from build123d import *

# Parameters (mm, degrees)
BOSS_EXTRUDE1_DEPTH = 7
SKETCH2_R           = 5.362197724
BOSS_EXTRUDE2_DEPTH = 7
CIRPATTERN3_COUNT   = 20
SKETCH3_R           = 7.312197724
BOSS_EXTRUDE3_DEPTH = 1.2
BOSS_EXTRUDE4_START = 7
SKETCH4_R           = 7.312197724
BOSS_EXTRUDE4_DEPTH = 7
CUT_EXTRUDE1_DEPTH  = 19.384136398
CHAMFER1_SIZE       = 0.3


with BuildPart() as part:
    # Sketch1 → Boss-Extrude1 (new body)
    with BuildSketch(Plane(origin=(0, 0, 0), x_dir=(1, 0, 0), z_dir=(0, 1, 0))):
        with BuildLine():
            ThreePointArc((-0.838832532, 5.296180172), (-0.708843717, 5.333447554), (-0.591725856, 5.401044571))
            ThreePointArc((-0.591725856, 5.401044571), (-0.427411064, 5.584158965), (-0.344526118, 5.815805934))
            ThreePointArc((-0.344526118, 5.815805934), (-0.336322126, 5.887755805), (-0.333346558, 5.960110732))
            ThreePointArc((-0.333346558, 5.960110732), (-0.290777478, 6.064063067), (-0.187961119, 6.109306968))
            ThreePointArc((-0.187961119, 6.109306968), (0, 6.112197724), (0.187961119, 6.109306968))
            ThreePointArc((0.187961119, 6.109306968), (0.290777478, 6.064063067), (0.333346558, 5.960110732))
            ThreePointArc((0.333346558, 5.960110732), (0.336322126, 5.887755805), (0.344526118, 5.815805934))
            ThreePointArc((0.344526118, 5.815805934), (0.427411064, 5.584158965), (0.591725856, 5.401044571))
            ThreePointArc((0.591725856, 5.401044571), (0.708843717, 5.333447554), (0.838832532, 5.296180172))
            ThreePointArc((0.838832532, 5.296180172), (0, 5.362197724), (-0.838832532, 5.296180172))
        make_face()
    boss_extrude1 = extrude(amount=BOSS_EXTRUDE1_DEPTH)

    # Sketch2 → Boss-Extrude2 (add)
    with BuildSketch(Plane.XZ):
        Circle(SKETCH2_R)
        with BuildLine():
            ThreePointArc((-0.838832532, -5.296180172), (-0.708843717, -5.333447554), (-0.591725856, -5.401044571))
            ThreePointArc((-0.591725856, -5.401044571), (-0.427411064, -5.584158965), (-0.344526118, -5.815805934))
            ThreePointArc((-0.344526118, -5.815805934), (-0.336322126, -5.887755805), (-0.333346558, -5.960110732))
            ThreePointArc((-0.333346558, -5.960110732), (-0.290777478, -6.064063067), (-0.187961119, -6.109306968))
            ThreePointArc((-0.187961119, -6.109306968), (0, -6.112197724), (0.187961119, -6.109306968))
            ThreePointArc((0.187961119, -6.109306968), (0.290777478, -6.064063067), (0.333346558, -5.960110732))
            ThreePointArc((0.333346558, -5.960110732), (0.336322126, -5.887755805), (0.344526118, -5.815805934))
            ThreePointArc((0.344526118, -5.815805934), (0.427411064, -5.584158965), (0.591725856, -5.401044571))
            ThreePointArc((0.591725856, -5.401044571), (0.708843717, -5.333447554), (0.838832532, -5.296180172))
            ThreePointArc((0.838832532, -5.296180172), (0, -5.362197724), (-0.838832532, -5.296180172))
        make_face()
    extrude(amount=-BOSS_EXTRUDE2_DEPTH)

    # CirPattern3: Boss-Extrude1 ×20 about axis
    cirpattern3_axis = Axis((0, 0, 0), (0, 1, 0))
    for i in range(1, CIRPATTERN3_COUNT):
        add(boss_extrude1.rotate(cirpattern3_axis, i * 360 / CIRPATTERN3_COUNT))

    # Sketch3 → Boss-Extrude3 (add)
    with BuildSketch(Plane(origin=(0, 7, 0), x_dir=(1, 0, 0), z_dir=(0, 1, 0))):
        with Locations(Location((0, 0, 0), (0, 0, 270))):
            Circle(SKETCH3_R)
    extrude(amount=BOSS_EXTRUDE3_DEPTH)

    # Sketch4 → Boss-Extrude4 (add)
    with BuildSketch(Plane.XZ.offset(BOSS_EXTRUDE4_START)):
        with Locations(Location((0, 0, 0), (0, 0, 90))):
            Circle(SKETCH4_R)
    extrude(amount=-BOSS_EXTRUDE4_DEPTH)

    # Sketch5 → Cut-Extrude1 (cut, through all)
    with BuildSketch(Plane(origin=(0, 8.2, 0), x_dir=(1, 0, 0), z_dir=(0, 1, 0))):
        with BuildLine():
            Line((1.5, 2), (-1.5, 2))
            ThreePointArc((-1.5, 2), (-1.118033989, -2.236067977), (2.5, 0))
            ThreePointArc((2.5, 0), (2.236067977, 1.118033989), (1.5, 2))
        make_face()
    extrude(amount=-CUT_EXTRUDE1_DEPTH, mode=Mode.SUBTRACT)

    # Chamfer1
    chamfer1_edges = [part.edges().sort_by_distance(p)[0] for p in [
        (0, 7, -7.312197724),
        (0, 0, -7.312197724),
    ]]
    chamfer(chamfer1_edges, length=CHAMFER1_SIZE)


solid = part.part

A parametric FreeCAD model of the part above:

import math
import FreeCAD as App
import Part
import Sketcher
Q = App.Units.Quantity


def edges_at(feature, points):
    """Names of the edges that pass closest to the given points."""
    edges = feature.Shape.Edges
    near = lambda p: min(range(len(edges)), key=lambda i: edges[i].distToShape(Part.Vertex(*p))[0])
    return sorted({f"Edge{near(p) + 1}" for p in points})

doc = App.newDocument("Part")
body = doc.addObject("PartDesign::Body", "Body")

sketch1 = body.newObject("Sketcher::SketchObject", "Sketch")
sketch1.AttachmentSupport = (doc.getObject("XZ_Plane"), [""])
sketch1.MapMode = "FlatFace"
sketch1.addGeometry([
    Part.ArcOfCircle(Part.Circle(App.Vector(-0.93, -5.84, 0), App.Vector(0, 0, 1), 0.55), math.radians(53), math.radians(81)),
    Part.ArcOfCircle(Part.Circle(App.Vector(0, 0, 0), App.Vector(0, 0, 1), 5.36), math.radians(-99), math.radians(-81)),
    Part.ArcOfCircle(Part.Circle(App.Vector(0.93, -5.84, 0), App.Vector(0, 0, 1), 0.55), math.radians(99), math.radians(127)),
    Part.ArcOfCircle(Part.Circle(App.Vector(0.98, -5.91, 0), App.Vector(0, 0, 1), 0.64), math.radians(127), math.radians(171)),
    Part.ArcOfCircle(Part.Circle(App.Vector(1.33, -5.96, 0), App.Vector(0, 0, 1), 1), math.radians(171.42), math.radians(179.72)),
    Part.ArcOfCircle(Part.Circle(App.Vector(0.18, -5.96, 0), App.Vector(0, 0, 1), 0.15), math.radians(-88), math.radians(0)),
    Part.ArcOfCircle(Part.Circle(App.Vector(0, 0, 0), App.Vector(0, 0, 1), 6.11), math.radians(-91.76), math.radians(-88.24)),
    Part.ArcOfCircle(Part.Circle(App.Vector(-0.18, -5.96, 0), App.Vector(0, 0, 1), 0.15), math.radians(-180), math.radians(-92)),
    Part.ArcOfCircle(Part.Circle(App.Vector(-1.33, -5.96, 0), App.Vector(0, 0, 1), 1), math.radians(0.28), math.radians(8.58)),
    Part.ArcOfCircle(Part.Circle(App.Vector(-0.98, -5.91, 0), App.Vector(0, 0, 1), 0.64), math.radians(9), math.radians(53)),
], False)
sketch1.addConstraint([
    Sketcher.Constraint("Tangent", 0, 2, 1, 1),
    Sketcher.Constraint("Tangent", 1, 2, 2, 1),
    Sketcher.Constraint("Tangent", 2, 2, 3, 1),
    Sketcher.Constraint("Tangent", 3, 2, 4, 1),
    Sketcher.Constraint("Tangent", 4, 2, 5, 2),
    Sketcher.Constraint("Tangent", 5, 1, 6, 2),
    Sketcher.Constraint("Tangent", 6, 1, 7, 2),
    Sketcher.Constraint("Tangent", 7, 1, 8, 1),
    Sketcher.Constraint("Tangent", 8, 2, 9, 1),
    Sketcher.Constraint("Tangent", 9, 2, 0, 1),
    Sketcher.Constraint("Coincident", 1, 3, -1, 1),
    Sketcher.Constraint("Coincident", 6, 3, -1, 1),
    Sketcher.Constraint("Equal", 0, 2),
    Sketcher.Constraint("Equal", 5, 7),
    Sketcher.Constraint("Equal", 4, 8),
    Sketcher.Constraint("Equal", 3, 9),
    Sketcher.Constraint("Symmetric", 4, 3, 8, 3, -2),
    Sketcher.Constraint("Horizontal", 0, 3, 2, 3),
    Sketcher.Constraint("Radius", 4, Q("1 mm")),
    Sketcher.Constraint("Radius", 5, Q("0.15 mm")),
    Sketcher.Constraint("Radius", 0, Q("0.555 mm")),
    Sketcher.Constraint("Radius", 1, Q("5.362198 mm")),
    Sketcher.Constraint("Radius", 3, Q("0.638533 mm")),
    Sketcher.Constraint("Radius", 6, Q("6.112197 mm")),
    Sketcher.Constraint("DistanceX", 8, 3, 0, 2, Q("0.494502 mm")),
    Sketcher.Constraint("DistanceX", 3, 2, 2, 2, Q("0.2472 mm")),
    Sketcher.Constraint("DistanceY", 5, 1, 3, 2, Q("0.293501 mm")),
])
pad1 = body.newObject("PartDesign::Pad", "Pad")
pad1.Profile = sketch1
pad1.Length = 7
pad1.Reversed = True

sketch2 = body.newObject("Sketcher::SketchObject", "Sketch001")
sketch2.AttachmentSupport = (doc.getObject("XZ_Plane"), [""])
sketch2.MapMode = "FlatFace"
sketch2.addGeometry([
    Part.ArcOfCircle(Part.Circle(App.Vector(-0.93, -5.84, 0), App.Vector(0, 0, 1), 0.55), math.radians(53), math.radians(81)),
    Part.ArcOfCircle(Part.Circle(App.Vector(-0.98, -5.91, 0), App.Vector(0, 0, 1), 0.64), math.radians(9), math.radians(53)),
    Part.ArcOfCircle(Part.Circle(App.Vector(-1.33, -5.96, 0), App.Vector(0, 0, 1), 1), math.radians(0.28), math.radians(8.58)),
    Part.ArcOfCircle(Part.Circle(App.Vector(-0.18, -5.96, 0), App.Vector(0, 0, 1), 0.15), math.radians(-180), math.radians(-92)),
    Part.ArcOfCircle(Part.Circle(App.Vector(0, 0, 0), App.Vector(0, 0, 1), 6.11), math.radians(-91.76), math.radians(-88.24)),
    Part.ArcOfCircle(Part.Circle(App.Vector(0.18, -5.96, 0), App.Vector(0, 0, 1), 0.15), math.radians(-88), math.radians(0)),
    Part.ArcOfCircle(Part.Circle(App.Vector(1.33, -5.96, 0), App.Vector(0, 0, 1), 1), math.radians(171.42), math.radians(179.72)),
    Part.ArcOfCircle(Part.Circle(App.Vector(0.98, -5.91, 0), App.Vector(0, 0, 1), 0.64), math.radians(127), math.radians(171)),
    Part.ArcOfCircle(Part.Circle(App.Vector(0.93, -5.84, 0), App.Vector(0, 0, 1), 0.55), math.radians(99), math.radians(127)),
    Part.ArcOfCircle(Part.Circle(App.Vector(0, 0, 0), App.Vector(0, 0, 1), 5.36), math.radians(-81), math.radians(261)),
], False)
sketch2.addConstraint([
    Sketcher.Constraint("Tangent", 0, 1, 1, 2),
    Sketcher.Constraint("Tangent", 1, 1, 2, 2),
    Sketcher.Constraint("Tangent", 2, 1, 3, 1),
    Sketcher.Constraint("Tangent", 3, 2, 4, 1),
    Sketcher.Constraint("Tangent", 4, 2, 5, 1),
    Sketcher.Constraint("Tangent", 5, 2, 6, 2),
    Sketcher.Constraint("Tangent", 6, 1, 7, 2),
    Sketcher.Constraint("Tangent", 7, 1, 8, 2),
    Sketcher.Constraint("Tangent", 8, 1, 9, 1),
    Sketcher.Constraint("Tangent", 9, 2, 0, 2),
    Sketcher.Constraint("Coincident", 4, 3, -1, 1),
    Sketcher.Constraint("Coincident", 9, 3, -1, 1),
    Sketcher.Constraint("Equal", 3, 5),
    Sketcher.Constraint("Equal", 2, 6),
    Sketcher.Constraint("Equal", 1, 7),
    Sketcher.Constraint("Equal", 0, 8),
    Sketcher.Constraint("Symmetric", 2, 3, 6, 3, -2),
    Sketcher.Constraint("Horizontal", 1, 3, 7, 3),
    Sketcher.Constraint("Radius", 2, Q("1 mm")),
    Sketcher.Constraint("Radius", 3, Q("0.15 mm")),
    Sketcher.Constraint("Radius", 0, Q("0.555 mm")),
    Sketcher.Constraint("Radius", 1, Q("0.638533 mm")),
    Sketcher.Constraint("Radius", 4, Q("6.112197 mm")),
    Sketcher.Constraint("Radius", 9, Q("5.362198 mm")),
    Sketcher.Constraint("DistanceX", 0, 1, 1, 1, Q("0.2472 mm")),
    Sketcher.Constraint("DistanceY", 3, 2, 1, 1, Q("0.293501 mm")),
    Sketcher.Constraint("DistanceX", 8, 1, 6, 3, Q("0.494502 mm")),
])
pad2 = body.newObject("PartDesign::Pad", "Pad001")
pad2.Profile = sketch2
pad2.Length = 7
pad2.Reversed = True
doc.recompute()

polarpattern = body.newObject("PartDesign::PolarPattern", "PolarPattern")
polarpattern.Originals = [pad1]
polarpattern.Axis = (doc.getObject("Y_Axis"), [""])
polarpattern.Angle = 360
polarpattern.Occurrences = 20
body.Tip = polarpattern

sketch3 = body.newObject("Sketcher::SketchObject", "Sketch002")
sketch3.AttachmentSupport = (doc.getObject("XZ_Plane"), [""])
sketch3.MapMode = "FlatFace"
sketch3.AttachmentOffset = App.Placement(App.Vector(0, 0, -7), App.Rotation())
sketch3.addGeometry(Part.Circle(App.Vector(0, 0, 0), App.Vector(0, 0, 1), 7), False)
sketch3.addConstraint([
    Sketcher.Constraint("Coincident", 0, 3, -1, 1),
    Sketcher.Constraint("Diameter", 0, Q("14.624395 mm")),
])
pad3 = body.newObject("PartDesign::Pad", "Pad002")
pad3.Profile = sketch3
pad3.Length = 1.2
pad3.Reversed = True

sketch4 = body.newObject("Sketcher::SketchObject", "Sketch003")
sketch4.AttachmentSupport = (doc.getObject("XZ_Plane"), [""])
sketch4.MapMode = "FlatFace"
sketch4.AttachmentOffset = App.Placement(App.Vector(0, 0, 7), App.Rotation())
sketch4.addGeometry(Part.Circle(App.Vector(0, 0, 0), App.Vector(0, 0, 1), 7), False)
sketch4.addConstraint([
    Sketcher.Constraint("Coincident", 0, 3, -1, 1),
    Sketcher.Constraint("Diameter", 0, Q("14.624395 mm")),
])
pad4 = body.newObject("PartDesign::Pad", "Pad003")
pad4.Profile = sketch4
pad4.Length = 7
pad4.Reversed = True

sketch5 = body.newObject("Sketcher::SketchObject", "Sketch004")
sketch5.AttachmentSupport = (doc.getObject("XZ_Plane"), [""])
sketch5.MapMode = "FlatFace"
sketch5.AttachmentOffset = App.Placement(App.Vector(0, 0, -8.2), App.Rotation())
sketch5.addGeometry([
    Part.LineSegment(App.Vector(1.5, -2, 0), App.Vector(-1.5, -2, 0)),
    Part.ArcOfCircle(Part.Circle(App.Vector(0, 0, 0), App.Vector(0, 0, 1), 2.5), math.radians(0), math.radians(233)),
    Part.ArcOfCircle(Part.Circle(App.Vector(0, 0, 0), App.Vector(0, 0, 1), 2.5), math.radians(-53), math.radians(0)),
], False)
sketch5.addConstraint([
    Sketcher.Constraint("Coincident", 0, 2, 1, 2),
    Sketcher.Constraint("Tangent", 1, 1, 2, 2),
    Sketcher.Constraint("Coincident", 2, 1, 0, 1),
    Sketcher.Constraint("Horizontal", 0),
    Sketcher.Constraint("Coincident", 1, 3, -1, 1),
    Sketcher.Constraint("Equal", 1, 2),
    Sketcher.Constraint("PointOnObject", 1, 1, -1),
    Sketcher.Constraint("Radius", 1, Q("2.5 mm")),
    Sketcher.Constraint("DistanceX", 0, 2, 0, 1, Q("3 mm")),
])
pocket1 = body.newObject("PartDesign::Pocket", "Pocket")
pocket1.Profile = sketch5
pocket1.Type = "ThroughAll"
pocket1.Reversed = True
doc.recompute()

chamfer = body.newObject("PartDesign::Chamfer", "Chamfer")
chamfer.Base = (pocket1, edges_at(pocket1, [(0, 7, -7.312), (0, 0, -7.312)]))
chamfer.Size = 0.3

doc.recompute()
